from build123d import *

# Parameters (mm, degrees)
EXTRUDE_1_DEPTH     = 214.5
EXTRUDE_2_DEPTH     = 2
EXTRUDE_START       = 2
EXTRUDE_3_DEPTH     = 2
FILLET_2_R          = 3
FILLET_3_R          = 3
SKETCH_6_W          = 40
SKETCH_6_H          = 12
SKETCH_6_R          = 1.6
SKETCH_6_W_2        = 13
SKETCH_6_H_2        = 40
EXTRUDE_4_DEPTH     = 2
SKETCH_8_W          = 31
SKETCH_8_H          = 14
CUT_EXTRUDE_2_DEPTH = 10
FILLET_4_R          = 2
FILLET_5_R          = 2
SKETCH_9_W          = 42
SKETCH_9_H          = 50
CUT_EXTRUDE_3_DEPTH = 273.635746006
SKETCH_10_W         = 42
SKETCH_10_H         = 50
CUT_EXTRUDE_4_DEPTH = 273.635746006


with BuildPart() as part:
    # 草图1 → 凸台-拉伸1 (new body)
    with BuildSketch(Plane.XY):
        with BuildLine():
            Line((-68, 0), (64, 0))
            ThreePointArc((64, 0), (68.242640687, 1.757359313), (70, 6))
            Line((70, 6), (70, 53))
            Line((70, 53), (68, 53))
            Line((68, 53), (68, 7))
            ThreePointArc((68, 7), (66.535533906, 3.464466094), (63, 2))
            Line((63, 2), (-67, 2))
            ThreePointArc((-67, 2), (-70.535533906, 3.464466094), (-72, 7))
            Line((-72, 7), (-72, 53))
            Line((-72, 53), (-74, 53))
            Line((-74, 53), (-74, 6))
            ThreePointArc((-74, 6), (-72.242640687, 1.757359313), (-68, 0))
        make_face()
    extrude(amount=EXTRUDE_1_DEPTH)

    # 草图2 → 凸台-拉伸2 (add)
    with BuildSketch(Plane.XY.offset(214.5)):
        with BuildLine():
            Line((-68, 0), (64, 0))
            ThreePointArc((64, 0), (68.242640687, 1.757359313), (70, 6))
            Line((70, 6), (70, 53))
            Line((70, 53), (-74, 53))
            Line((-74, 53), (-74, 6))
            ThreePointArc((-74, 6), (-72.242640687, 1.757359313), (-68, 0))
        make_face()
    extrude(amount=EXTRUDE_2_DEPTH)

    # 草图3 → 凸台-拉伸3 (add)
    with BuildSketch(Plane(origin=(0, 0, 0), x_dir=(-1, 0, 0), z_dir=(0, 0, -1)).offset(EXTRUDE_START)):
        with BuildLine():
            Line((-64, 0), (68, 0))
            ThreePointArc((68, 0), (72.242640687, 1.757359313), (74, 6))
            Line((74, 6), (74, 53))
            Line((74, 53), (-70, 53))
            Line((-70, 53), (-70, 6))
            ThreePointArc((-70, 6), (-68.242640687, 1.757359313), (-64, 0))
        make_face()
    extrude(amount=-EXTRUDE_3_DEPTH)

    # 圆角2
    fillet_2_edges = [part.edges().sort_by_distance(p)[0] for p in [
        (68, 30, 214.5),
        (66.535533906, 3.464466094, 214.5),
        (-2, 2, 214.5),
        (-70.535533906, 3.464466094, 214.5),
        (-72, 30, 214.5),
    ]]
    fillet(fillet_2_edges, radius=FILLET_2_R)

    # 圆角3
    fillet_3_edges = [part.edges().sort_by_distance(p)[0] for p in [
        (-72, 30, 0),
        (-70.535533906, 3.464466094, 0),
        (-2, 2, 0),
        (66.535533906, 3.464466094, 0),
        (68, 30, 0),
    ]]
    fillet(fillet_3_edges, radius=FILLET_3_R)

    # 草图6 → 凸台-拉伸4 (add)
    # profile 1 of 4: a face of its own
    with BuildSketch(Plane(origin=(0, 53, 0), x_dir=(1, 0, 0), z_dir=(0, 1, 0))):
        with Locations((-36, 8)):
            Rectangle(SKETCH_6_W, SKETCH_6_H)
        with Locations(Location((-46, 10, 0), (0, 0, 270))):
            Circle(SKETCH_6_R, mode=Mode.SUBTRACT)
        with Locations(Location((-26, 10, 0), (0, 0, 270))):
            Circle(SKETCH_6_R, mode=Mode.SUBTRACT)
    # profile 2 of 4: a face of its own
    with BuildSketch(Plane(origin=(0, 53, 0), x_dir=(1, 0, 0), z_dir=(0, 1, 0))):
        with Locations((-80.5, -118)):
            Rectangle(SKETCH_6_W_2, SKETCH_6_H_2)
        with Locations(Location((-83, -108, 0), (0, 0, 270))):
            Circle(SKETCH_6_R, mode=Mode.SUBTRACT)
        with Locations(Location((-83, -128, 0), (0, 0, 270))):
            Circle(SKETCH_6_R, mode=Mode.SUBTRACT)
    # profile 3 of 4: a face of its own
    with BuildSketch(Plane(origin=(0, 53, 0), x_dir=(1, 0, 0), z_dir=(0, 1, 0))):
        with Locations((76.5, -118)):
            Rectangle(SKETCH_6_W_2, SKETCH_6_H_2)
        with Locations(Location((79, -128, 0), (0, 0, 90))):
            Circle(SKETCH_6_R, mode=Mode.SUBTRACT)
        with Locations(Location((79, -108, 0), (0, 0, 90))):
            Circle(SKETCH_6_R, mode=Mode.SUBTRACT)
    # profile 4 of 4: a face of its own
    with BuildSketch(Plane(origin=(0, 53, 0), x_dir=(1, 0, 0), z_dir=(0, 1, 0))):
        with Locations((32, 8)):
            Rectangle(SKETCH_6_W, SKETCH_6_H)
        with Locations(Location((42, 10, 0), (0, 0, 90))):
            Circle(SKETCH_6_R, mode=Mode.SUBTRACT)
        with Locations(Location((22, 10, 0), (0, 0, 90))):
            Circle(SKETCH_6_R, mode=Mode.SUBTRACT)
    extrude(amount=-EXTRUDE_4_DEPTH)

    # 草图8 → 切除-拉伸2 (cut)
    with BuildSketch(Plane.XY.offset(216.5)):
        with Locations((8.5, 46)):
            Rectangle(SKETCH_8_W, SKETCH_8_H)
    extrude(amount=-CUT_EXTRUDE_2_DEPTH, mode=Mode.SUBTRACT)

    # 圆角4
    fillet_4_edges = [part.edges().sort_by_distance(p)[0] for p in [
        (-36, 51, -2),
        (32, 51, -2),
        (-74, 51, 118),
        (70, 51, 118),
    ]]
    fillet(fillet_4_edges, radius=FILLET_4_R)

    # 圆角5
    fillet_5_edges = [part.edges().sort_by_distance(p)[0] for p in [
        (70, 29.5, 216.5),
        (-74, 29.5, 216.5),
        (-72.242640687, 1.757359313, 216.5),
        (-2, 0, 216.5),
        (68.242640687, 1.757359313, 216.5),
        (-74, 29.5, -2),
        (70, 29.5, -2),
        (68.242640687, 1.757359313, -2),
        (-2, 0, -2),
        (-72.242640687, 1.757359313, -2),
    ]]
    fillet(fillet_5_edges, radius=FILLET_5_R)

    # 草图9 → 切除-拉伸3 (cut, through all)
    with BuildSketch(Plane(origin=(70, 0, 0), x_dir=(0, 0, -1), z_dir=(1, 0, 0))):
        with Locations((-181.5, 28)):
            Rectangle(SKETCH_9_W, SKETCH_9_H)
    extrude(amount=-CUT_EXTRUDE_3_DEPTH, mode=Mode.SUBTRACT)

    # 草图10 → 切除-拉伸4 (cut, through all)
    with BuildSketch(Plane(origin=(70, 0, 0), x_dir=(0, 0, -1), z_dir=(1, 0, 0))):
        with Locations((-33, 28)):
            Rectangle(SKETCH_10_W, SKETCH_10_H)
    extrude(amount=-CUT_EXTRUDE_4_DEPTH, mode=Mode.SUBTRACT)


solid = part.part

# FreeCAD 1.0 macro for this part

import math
import FreeCAD as App
import Part
import Sketcher
from FreeCAD import Vector
Q = App.Units.Quantity


def edges_at(feature, points):
    """Names of the edges that pass closest to the given points."""
    edges = feature.Shape.Edges
    near = lambda p: min(range(len(edges)), key=lambda i: edges[i].distToShape(Part.Vertex(*p))[0])
    return sorted({f"Edge{near(p) + 1}" for p in points})

doc = App.newDocument("Part")
body = doc.addObject("PartDesign::Body", "Body")

sketch1 = body.newObject("Sketcher::SketchObject", "Sketch")
sketch1.AttachmentSupport = (doc.getObject("XY_Plane"), [""])
sketch1.MapMode = "FlatFace"
sketch1.addGeometry([
    Part.LineSegment(Vector(-68, 0, 0), Vector(64, 0, 0)),
    Part.ArcOfCircle(Part.Circle(Vector(64, 6, 0), Vector(0, 0, 1), 6), math.radians(-90), math.radians(0)),
    Part.LineSegment(Vector(70, 6, 0), Vector(70, 53, 0)),
    Part.LineSegment(Vector(70, 53, 0), Vector(68, 53, 0)),
    Part.LineSegment(Vector(68, 53, 0), Vector(68, 7, 0)),
    Part.ArcOfCircle(Part.Circle(Vector(63, 7, 0), Vector(0, 0, 1), 5), math.radians(-90), math.radians(0)),
    Part.LineSegment(Vector(63, 2, 0), Vector(-67, 2, 0)),
    Part.ArcOfCircle(Part.Circle(Vector(-67, 7, 0), Vector(0, 0, 1), 5), math.radians(180), math.radians(270)),
    Part.LineSegment(Vector(-72, 7, 0), Vector(-72, 53, 0)),
    Part.LineSegment(Vector(-72, 53, 0), Vector(-74, 53, 0)),
    Part.LineSegment(Vector(-74, 53, 0), Vector(-74, 6, 0)),
    Part.ArcOfCircle(Part.Circle(Vector(-68, 6, 0), Vector(0, 0, 1), 6), math.radians(180), math.radians(270)),
], False)
sketch1.addConstraint([
    Sketcher.Constraint("Tangent", 0, 2, 1, 1),
    Sketcher.Constraint("Tangent", 1, 2, 2, 1),
    Sketcher.Constraint("Coincident", 2, 2, 3, 1),
    Sketcher.Constraint("Coincident", 3, 2, 4, 1),
    Sketcher.Constraint("Tangent", 4, 2, 5, 2),
    Sketcher.Constraint("Tangent", 5, 1, 6, 1),
    Sketcher.Constraint("Tangent", 6, 2, 7, 2),
    Sketcher.Constraint("Tangent", 7, 1, 8, 1),
    Sketcher.Constraint("Coincident", 8, 2, 9, 1),
    Sketcher.Constraint("Coincident", 9, 2, 10, 1),
    Sketcher.Constraint("Tangent", 10, 2, 11, 1),
    Sketcher.Constraint("Tangent", 11, 2, 0, 1),
    Sketcher.Constraint("Horizontal", 0),
    Sketcher.Constraint("Vertical", 2),
    Sketcher.Constraint("Horizontal", 3),
    Sketcher.Constraint("Vertical", 4),
    Sketcher.Constraint("Horizontal", 6),
    Sketcher.Constraint("Vertical", 8),
    Sketcher.Constraint("Horizontal", 9),
    Sketcher.Constraint("Vertical", 10),
    Sketcher.Constraint("Equal", 5, 7),
    Sketcher.Constraint("Equal", 1, 11),
    Sketcher.Constraint("PointOnObject", 0, 2, -1),
    Sketcher.Constraint("Horizontal", 3, 2, 8, 2),
    Sketcher.Constraint("Equal", 3, 9),
    Sketcher.Constraint("Radius", 1, Q("6 mm")),
    Sketcher.Constraint("Radius", 5, Q("5 mm")),
    Sketcher.Constraint("DistanceX", 0, 1, 0, 2, Q("132 mm")),
    Sketcher.Constraint("DistanceX", 3, 2, 3, 1, Q("2 mm")),
    Sketcher.Constraint("DistanceY", 2, 1, 2, 2, Q("47 mm")),
    Sketcher.Constraint("DistanceY", 4, 2, 4, 1, Q("46 mm")),
    Sketcher.Constraint("DistanceX", -1, 1, 1, 3, Q("64 mm")),
])
pad1 = body.newObject("PartDesign::Pad", "Pad")
pad1.Profile = sketch1
pad1.Length = 214.5

sketch2 = body.newObject("Sketcher::SketchObject", "Sketch001")
sketch2.AttachmentSupport = (doc.getObject("XY_Plane"), [""])
sketch2.MapMode = "FlatFace"
sketch2.AttachmentOffset = App.Placement(Vector(0, 0, 214.5), App.Rotation())
sketch2.addGeometry([
    Part.LineSegment(Vector(-68, 0, 0), Vector(64, 0, 0)),
    Part.ArcOfCircle(Part.Circle(Vector(64, 6, 0), Vector(0, 0, 1), 6), math.radians(-90), math.radians(0)),
    Part.LineSegment(Vector(70, 6, 0), Vector(70, 53, 0)),
    Part.LineSegment(Vector(70, 53, 0), Vector(-74, 53, 0)),
    Part.LineSegment(Vector(-74, 53, 0), Vector(-74, 6, 0)),
    Part.ArcOfCircle(Part.Circle(Vector(-68, 6, 0), Vector(0, 0, 1), 6), math.radians(180), math.radians(270)),
], False)
sketch2.addConstraint([
    Sketcher.Constraint("Tangent", 0, 2, 1, 1),
    Sketcher.Constraint("Tangent", 1, 2, 2, 1),
    Sketcher.Constraint("Coincident", 2, 2, 3, 1),
    Sketcher.Constraint("Coincident", 3, 2, 4, 1),
    Sketcher.Constraint("Tangent", 4, 2, 5, 1),
    Sketcher.Constraint("Tangent", 5, 2, 0, 1),
    Sketcher.Constraint("Horizontal", 0),
    Sketcher.Constraint("Vertical", 2),
    Sketcher.Constraint("Horizontal", 3),
    Sketcher.Constraint("Vertical", 4),
    Sketcher.Constraint("Equal", 1, 5),
    Sketcher.Constraint("PointOnObject", 0, 2, -1),
    Sketcher.Constraint("Radius", 1, Q("6 mm")),
    Sketcher.Constraint("DistanceX", 0, 1, 0, 2, Q("132 mm")),
    Sketcher.Constraint("DistanceY", 2, 1, 2, 2, Q("47 mm")),
    Sketcher.Constraint("DistanceX", -1, 1, 1, 3, Q("64 mm")),
])
pad2 = body.newObject("PartDesign::Pad", "Pad001")
pad2.Profile = sketch2
pad2.Length = 2

sketch3 = body.newObject("Sketcher::SketchObject", "Sketch002")
sketch3.AttachmentSupport = (doc.getObject("XY_Plane"), [""])
sketch3.MapMode = "FlatFace"
sketch3.AttachmentOffset = App.Placement(Vector(0, 0, -2), App.Rotation())
sketch3.addGeometry([
    Part.LineSegment(Vector(64, 0, 0), Vector(-68, 0, 0)),
    Part.ArcOfCircle(Part.Circle(Vector(-68, 6, 0), Vector(0, 0, 1), 6), math.radians(180), math.radians(270)),
    Part.LineSegment(Vector(-74, 6, 0), Vector(-74, 53, 0)),
    Part.LineSegment(Vector(-74, 53, 0), Vector(70, 53, 0)),
    Part.LineSegment(Vector(70, 53, 0), Vector(70, 6, 0)),
    Part.ArcOfCircle(Part.Circle(Vector(64, 6, 0), Vector(0, 0, 1), 6), math.radians(-90), math.radians(0)),
], False)
sketch3.addConstraint([
    Sketcher.Constraint("Tangent", 0, 2, 1, 2),
    Sketcher.Constraint("Tangent", 1, 1, 2, 1),
    Sketcher.Constraint("Coincident", 2, 2, 3, 1),
    Sketcher.Constraint("Coincident", 3, 2, 4, 1),
    Sketcher.Constraint("Tangent", 4, 2, 5, 2),
    Sketcher.Constraint("Tangent", 5, 1, 0, 1),
    Sketcher.Constraint("Horizontal", 0),
    Sketcher.Constraint("Vertical", 2),
    Sketcher.Constraint("Horizontal", 3),
    Sketcher.Constraint("Vertical", 4),
    Sketcher.Constraint("Equal", 1, 5),
    Sketcher.Constraint("PointOnObject", 0, 2, -1),
    Sketcher.Constraint("Radius", 1, Q("6 mm")),
    Sketcher.Constraint("DistanceX", 0, 2, 0, 1, Q("132 mm")),
    Sketcher.Constraint("DistanceY", 2, 1, 2, 2, Q("47 mm")),
    Sketcher.Constraint("DistanceX", 1, 3, -1, 1, Q("68 mm")),
])
pad3 = body.newObject("PartDesign::Pad", "Pad002")
pad3.Profile = sketch3
pad3.Length = 2
doc.recompute()

fillet = body.newObject("PartDesign::Fillet", "Fillet")
fillet.Base = (pad3, edges_at(pad3, [
    (68, 30, 214.5),
    (66.536, 3.464, 214.5),
    (-2, 2, 214.5),
    (-70.536, 3.464, 214.5),
    (-72, 30, 214.5),
]))
fillet.Radius = 3
doc.recompute()

fillet2 = body.newObject("PartDesign::Fillet", "Fillet001")
fillet2.Base = (fillet, edges_at(fillet, [
    (-72, 30, 0),
    (-70.536, 3.464, 0),
    (-2, 2, 0),
    (66.536, 3.464, 0),
    (68, 30, 0),
]))
fillet2.Radius = 3

sketch4 = body.newObject("Sketcher::SketchObject", "Sketch003")
sketch4.AttachmentSupport = (doc.getObject("XZ_Plane"), [""])
sketch4.MapMode = "FlatFace"
sketch4.AttachmentOffset = App.Placement(Vector(0, 0, -53), App.Rotation())
sketch4.addGeometry([
    Part.LineSegment(Vector(-56, -14, 0), Vector(-56, -2, 0)),
    Part.LineSegment(Vector(-56, -2, 0), Vector(-16, -2, 0)),
    Part.LineSegment(Vector(-16, -2, 0), Vector(-16, -14, 0)),
    Part.LineSegment(Vector(-16, -14, 0), Vector(-56, -14, 0)),
    Part.Circle(Vector(-46, -10, 0), Vector(0, 0, 1), 1.6),
    Part.Circle(Vector(-26, -10, 0), Vector(0, 0, 1), 1.6),
    Part.LineSegment(Vector(-87, 98, 0), Vector(-87, 138, 0)),
    Part.LineSegment(Vector(-87, 138, 0), Vector(-74, 138, 0)),
    Part.LineSegment(Vector(-74, 138, 0), Vector(-74, 98, 0)),
    Part.LineSegment(Vector(-74, 98, 0), Vector(-87, 98, 0)),
    Part.Circle(Vector(-83, 128, 0), Vector(0, 0, 1), 1.6),
    Part.Circle(Vector(-83, 108, 0), Vector(0, 0, 1), 1.6),
    Part.LineSegment(Vector(70, 98, 0), Vector(70, 138, 0)),
    Part.LineSegment(Vector(70, 138, 0), Vector(83, 138, 0)),
    Part.LineSegment(Vector(83, 138, 0), Vector(83, 98, 0)),
    Part.LineSegment(Vector(83, 98, 0), Vector(70, 98, 0)),
    Part.Circle(Vector(79, 128, 0), Vector(0, 0, 1), 1.6),
    Part.Circle(Vector(79, 108, 0), Vector(0, 0, 1), 1.6),
    Part.LineSegment(Vector(12, -14, 0), Vector(12, -2, 0)),
    Part.LineSegment(Vector(12, -2, 0), Vector(52, -2, 0)),
    Part.LineSegment(Vector(52, -2, 0), Vector(52, -14, 0)),
    Part.LineSegment(Vector(52, -14, 0), Vector(12, -14, 0)),
    Part.Circle(Vector(22, -10, 0), Vector(0, 0, 1), 1.6),
    Part.Circle(Vector(42, -10, 0), Vector(0, 0, 1), 1.6),
], False)
sketch4.addConstraint([
    Sketcher.Constraint("Coincident", 0, 2, 1, 1),
    Sketcher.Constraint("Coincident", 1, 2, 2, 1),
    Sketcher.Constraint("Coincident", 2, 2, 3, 1),
    Sketcher.Constraint("Coincident", 3, 2, 0, 1),
    Sketcher.Constraint("Coincident", 6, 2, 7, 1),
    Sketcher.Constraint("Coincident", 7, 2, 8, 1),
    Sketcher.Constraint("Coincident", 8, 2, 9, 1),
    Sketcher.Constraint("Coincident", 9, 2, 6, 1),
    Sketcher.Constraint("Coincident", 12, 2, 13, 1),
    Sketcher.Constraint("Coincident", 13, 2, 14, 1),
    Sketcher.Constraint("Coincident", 14, 2, 15, 1),
    Sketcher.Constraint("Coincident", 15, 2, 12, 1),
    Sketcher.Constraint("Coincident", 18, 2, 19, 1),
    Sketcher.Constraint("Coincident", 19, 2, 20, 1),
    Sketcher.Constraint("Coincident", 20, 2, 21, 1),
    Sketcher.Constraint("Coincident", 21, 2, 18, 1),
    Sketcher.Constraint("Vertical", 0),
    Sketcher.Constraint("Horizontal", 1),
    Sketcher.Constraint("Vertical", 2),
    Sketcher.Constraint("Horizontal", 3),
    Sketcher.Constraint("Vertical", 6),
    Sketcher.Constraint("Horizontal", 7),
    Sketcher.Constraint("Vertical", 8),
    Sketcher.Constraint("Horizontal", 9),
    Sketcher.Constraint("Vertical", 12),
    Sketcher.Constraint("Horizontal", 13),
    Sketcher.Constraint("Vertical", 14),
    Sketcher.Constraint("Horizontal", 15),
    Sketcher.Constraint("Vertical", 18),
    Sketcher.Constraint("Horizontal", 19),
    Sketcher.Constraint("Vertical", 20),
    Sketcher.Constraint("Horizontal", 21),
    Sketcher.Constraint("Equal", 4, 5),
    Sketcher.Constraint("Equal", 5, 10),
    Sketcher.Constraint("Equal", 10, 11),
    Sketcher.Constraint("Equal", 11, 16),
    Sketcher.Constraint("Equal", 16, 17),
    Sketcher.Constraint("Equal", 17, 22),
    Sketcher.Constraint("Equal", 22, 23),
    Sketcher.Constraint("Horizontal", 4, 3, 5, 3),
    Sketcher.Constraint("Horizontal", 10, 3, 16, 3),
    Sketcher.Constraint("Horizontal", 11, 3, 17, 3),
    Sketcher.Constraint("Horizontal", 5, 3, 22, 3),
    Sketcher.Constraint("Horizontal", 22, 3, 23, 3),
    Sketcher.Constraint("Horizontal", 7, 2, 12, 2),
    Sketcher.Constraint("Horizontal", 9, 2, 14, 2),
    Sketcher.Constraint("Horizontal", 1, 2, 18, 2),
    Sketcher.Constraint("Horizontal", 3, 2, 20, 2),
    Sketcher.Constraint("Vertical", 10, 3, 11, 3),
    Sketcher.Constraint("Vertical", 16, 3, 17, 3),
    Sketcher.Constraint("Equal", 9, 13),
    Sketcher.Constraint("Equal", 3, 19),
    Sketcher.Constraint("Equal", 21, 6),
    Sketcher.Constraint("Diameter", 4, Q("3.2 mm")),
    Sketcher.Constraint("DistanceX", 1, 1, 1, 2, Q("40 mm")),
    Sketcher.Constraint("DistanceX", 7, 1, 7, 2, Q("13 mm")),
    Sketcher.Constraint("DistanceY", 0, 1, 0, 2, Q("12 mm")),
    Sketcher.Constraint("DistanceX", 4, 3, -1, 1, Q("46 mm")),
    Sketcher.Constraint("DistanceY", 4, 3, -1, 1, Q("10 mm")),
    Sketcher.Constraint("DistanceX", 5, 3, -1, 1, Q("26 mm")),
    Sketcher.Constraint("DistanceX", 10, 3, -1, 1, Q("83 mm")),
    Sketcher.Constraint("DistanceY", -1, 1, 10, 3, Q("128 mm")),
    Sketcher.Constraint("DistanceY", -1, 1, 11, 3, Q("108 mm")),
    Sketcher.Constraint("DistanceX", -1, 1, 16, 3, Q("79 mm")),
    Sketcher.Constraint("DistanceX", -1, 1, 22, 3, Q("22 mm")),
    Sketcher.Constraint("DistanceX", -1, 1, 23, 3, Q("42 mm")),
    Sketcher.Constraint("DistanceX", 0, 2, -1, 1, Q("56 mm")),
    Sketcher.Constraint("DistanceY", 0, 2, -1, 1, Q("2 mm")),
    Sketcher.Constraint("DistanceX", 6, 2, -1, 1, Q("87 mm")),
    Sketcher.Constraint("DistanceY", -1, 1, 6, 2, Q("138 mm")),
    Sketcher.Constraint("DistanceX", -1, 1, 12, 2, Q("70 mm")),
    Sketcher.Constraint("DistanceX", -1, 1, 18, 2, Q("12 mm")),
])
pad4 = body.newObject("PartDesign::Pad", "Pad003")
pad4.Profile = sketch4
pad4.Length = 2

sketch5 = body.newObject("Sketcher::SketchObject", "Sketch004")
sketch5.AttachmentSupport = (doc.getObject("XY_Plane"), [""])
sketch5.MapMode = "FlatFace"
sketch5.AttachmentOffset = App.Placement(Vector(0, 0, 216.5), App.Rotation())
sketch5.addGeometry([
    Part.LineSegment(Vector(-7, 53, 0), Vector(-7, 39, 0)),
    Part.LineSegment(Vector(-7, 39, 0), Vector(24, 39, 0)),
    Part.LineSegment(Vector(24, 39, 0), Vector(24, 53, 0)),
    Part.LineSegment(Vector(24, 53, 0), Vector(-7, 53, 0)),
], False)
sketch5.addConstraint([
    Sketcher.Constraint("Coincident", 0, 2, 1, 1),
    Sketcher.Constraint("Coincident", 1, 2, 2, 1),
    Sketcher.Constraint("Coincident", 2, 2, 3, 1),
    Sketcher.Constraint("Coincident", 3, 2, 0, 1),
    Sketcher.Constraint("Vertical", 0),
    Sketcher.Constraint("Horizontal", 1),
    Sketcher.Constraint("Vertical", 2),
    Sketcher.Constraint("Horizontal", 3),
    Sketcher.Constraint("DistanceX", 1, 1, 1, 2, Q("31 mm")),
    Sketcher.Constraint("DistanceY", 0, 2, 0, 1, Q("14 mm")),
    Sketcher.Constraint("DistanceX", 0, 2, -1, 1, Q("7 mm")),
    Sketcher.Constraint("DistanceY", -1, 1, 0, 2, Q("39 mm")),
])
pocket1 = body.newObject("PartDesign::Pocket", "Pocket")
pocket1.Profile = sketch5
pocket1.Length = 10
doc.recompute()

fillet3 = body.newObject("PartDesign::Fillet", "Fillet002")
fillet3.Base = (pocket1, edges_at(pocket1, [
    (-36, 51, -2),
    (32, 51, -2),
    (-74, 51, 118),
    (70, 51, 118),
]))
fillet3.Radius = 2
doc.recompute()

fillet4 = body.newObject("PartDesign::Fillet", "Fillet003")
fillet4.Base = (fillet3, edges_at(fillet3, [
    (70, 29.5, 216.5),
    (-74, 29.5, 216.5),
    (-72.243, 1.757, 216.5),
    (-2, 0, 216.5),
    (68.243, 1.757, 216.5),
    (-74, 29.5, -2),
    (70, 29.5, -2),
    (68.243, 1.757, -2),
    (-2, 0, -2),
    (-72.243, 1.757, -2),
]))
fillet4.Radius = 2

sketch6 = body.newObject("Sketcher::SketchObject", "Sketch005")
sketch6.AttachmentSupport = (doc.getObject("YZ_Plane"), [""])
sketch6.MapMode = "FlatFace"
sketch6.AttachmentOffset = App.Placement(Vector(0, 0, 70), App.Rotation())
sketch6.addGeometry([
    Part.LineSegment(Vector(53, 202.5, 0), Vector(3, 202.5, 0)),
    Part.LineSegment(Vector(3, 202.5, 0), Vector(3, 160.5, 0)),
    Part.LineSegment(Vector(3, 160.5, 0), Vector(53, 160.5, 0)),
    Part.LineSegment(Vector(53, 160.5, 0), Vector(53, 202.5, 0)),
], False)
sketch6.addConstraint([
    Sketcher.Constraint("Coincident", 0, 2, 1, 1),
    Sketcher.Constraint("Coincident", 1, 2, 2, 1),
    Sketcher.Constraint("Coincident", 2, 2, 3, 1),
    Sketcher.Constraint("Coincident", 3, 2, 0, 1),
    Sketcher.Constraint("Horizontal", 0),
    Sketcher.Constraint("Vertical", 1),
    Sketcher.Constraint("Horizontal", 2),
    Sketcher.Constraint("Vertical", 3),
    Sketcher.Constraint("DistanceX", 0, 2, 0, 1, Q("50 mm")),
    Sketcher.Constraint("DistanceY", 1, 2, 1, 1, Q("42 mm")),
    Sketcher.Constraint("DistanceX", -1, 1, 0, 2, Q("3 mm")),
    Sketcher.Constraint("DistanceY", -1, 1, 0, 2, Q("202.5 mm")),
])
pocket2 = body.newObject("PartDesign::Pocket", "Pocket001")
pocket2.Profile = sketch6
pocket2.Type = "ThroughAll"

sketch7 = body.newObject("Sketcher::SketchObject", "Sketch006")
sketch7.AttachmentSupport = (doc.getObject("YZ_Plane"), [""])
sketch7.MapMode = "FlatFace"
sketch7.AttachmentOffset = App.Placement(Vector(0, 0, 70), App.Rotation())
sketch7.addGeometry([
    Part.LineSegment(Vector(53, 54, 0), Vector(3, 54, 0)),
    Part.LineSegment(Vector(3, 54, 0), Vector(3, 12, 0)),
    Part.LineSegment(Vector(3, 12, 0), Vector(53, 12, 0)),
    Part.LineSegment(Vector(53, 12, 0), Vector(53, 54, 0)),
], False)
sketch7.addConstraint([
    Sketcher.Constraint("Coincident", 0, 2, 1, 1),
    Sketcher.Constraint("Coincident", 1, 2, 2, 1),
    Sketcher.Constraint("Coincident", 2, 2, 3, 1),
    Sketcher.Constraint("Coincident", 3, 2, 0, 1),
    Sketcher.Constraint("Horizontal", 0),
    Sketcher.Constraint("Vertical", 1),
    Sketcher.Constraint("Horizontal", 2),
    Sketcher.Constraint("Vertical", 3),
    Sketcher.Constraint("DistanceX", 0, 2, 0, 1, Q("50 mm")),
    Sketcher.Constraint("DistanceY", 1, 2, 1, 1, Q("42 mm")),
    Sketcher.Constraint("DistanceX", -1, 1, 0, 2, Q("3 mm")),
    Sketcher.Constraint("DistanceY", -1, 1, 0, 2, Q("54 mm")),
])
pocket3 = body.newObject("PartDesign::Pocket", "Pocket002")
pocket3.Profile = sketch7
pocket3.Type = "ThroughAll"

doc.recompute()
